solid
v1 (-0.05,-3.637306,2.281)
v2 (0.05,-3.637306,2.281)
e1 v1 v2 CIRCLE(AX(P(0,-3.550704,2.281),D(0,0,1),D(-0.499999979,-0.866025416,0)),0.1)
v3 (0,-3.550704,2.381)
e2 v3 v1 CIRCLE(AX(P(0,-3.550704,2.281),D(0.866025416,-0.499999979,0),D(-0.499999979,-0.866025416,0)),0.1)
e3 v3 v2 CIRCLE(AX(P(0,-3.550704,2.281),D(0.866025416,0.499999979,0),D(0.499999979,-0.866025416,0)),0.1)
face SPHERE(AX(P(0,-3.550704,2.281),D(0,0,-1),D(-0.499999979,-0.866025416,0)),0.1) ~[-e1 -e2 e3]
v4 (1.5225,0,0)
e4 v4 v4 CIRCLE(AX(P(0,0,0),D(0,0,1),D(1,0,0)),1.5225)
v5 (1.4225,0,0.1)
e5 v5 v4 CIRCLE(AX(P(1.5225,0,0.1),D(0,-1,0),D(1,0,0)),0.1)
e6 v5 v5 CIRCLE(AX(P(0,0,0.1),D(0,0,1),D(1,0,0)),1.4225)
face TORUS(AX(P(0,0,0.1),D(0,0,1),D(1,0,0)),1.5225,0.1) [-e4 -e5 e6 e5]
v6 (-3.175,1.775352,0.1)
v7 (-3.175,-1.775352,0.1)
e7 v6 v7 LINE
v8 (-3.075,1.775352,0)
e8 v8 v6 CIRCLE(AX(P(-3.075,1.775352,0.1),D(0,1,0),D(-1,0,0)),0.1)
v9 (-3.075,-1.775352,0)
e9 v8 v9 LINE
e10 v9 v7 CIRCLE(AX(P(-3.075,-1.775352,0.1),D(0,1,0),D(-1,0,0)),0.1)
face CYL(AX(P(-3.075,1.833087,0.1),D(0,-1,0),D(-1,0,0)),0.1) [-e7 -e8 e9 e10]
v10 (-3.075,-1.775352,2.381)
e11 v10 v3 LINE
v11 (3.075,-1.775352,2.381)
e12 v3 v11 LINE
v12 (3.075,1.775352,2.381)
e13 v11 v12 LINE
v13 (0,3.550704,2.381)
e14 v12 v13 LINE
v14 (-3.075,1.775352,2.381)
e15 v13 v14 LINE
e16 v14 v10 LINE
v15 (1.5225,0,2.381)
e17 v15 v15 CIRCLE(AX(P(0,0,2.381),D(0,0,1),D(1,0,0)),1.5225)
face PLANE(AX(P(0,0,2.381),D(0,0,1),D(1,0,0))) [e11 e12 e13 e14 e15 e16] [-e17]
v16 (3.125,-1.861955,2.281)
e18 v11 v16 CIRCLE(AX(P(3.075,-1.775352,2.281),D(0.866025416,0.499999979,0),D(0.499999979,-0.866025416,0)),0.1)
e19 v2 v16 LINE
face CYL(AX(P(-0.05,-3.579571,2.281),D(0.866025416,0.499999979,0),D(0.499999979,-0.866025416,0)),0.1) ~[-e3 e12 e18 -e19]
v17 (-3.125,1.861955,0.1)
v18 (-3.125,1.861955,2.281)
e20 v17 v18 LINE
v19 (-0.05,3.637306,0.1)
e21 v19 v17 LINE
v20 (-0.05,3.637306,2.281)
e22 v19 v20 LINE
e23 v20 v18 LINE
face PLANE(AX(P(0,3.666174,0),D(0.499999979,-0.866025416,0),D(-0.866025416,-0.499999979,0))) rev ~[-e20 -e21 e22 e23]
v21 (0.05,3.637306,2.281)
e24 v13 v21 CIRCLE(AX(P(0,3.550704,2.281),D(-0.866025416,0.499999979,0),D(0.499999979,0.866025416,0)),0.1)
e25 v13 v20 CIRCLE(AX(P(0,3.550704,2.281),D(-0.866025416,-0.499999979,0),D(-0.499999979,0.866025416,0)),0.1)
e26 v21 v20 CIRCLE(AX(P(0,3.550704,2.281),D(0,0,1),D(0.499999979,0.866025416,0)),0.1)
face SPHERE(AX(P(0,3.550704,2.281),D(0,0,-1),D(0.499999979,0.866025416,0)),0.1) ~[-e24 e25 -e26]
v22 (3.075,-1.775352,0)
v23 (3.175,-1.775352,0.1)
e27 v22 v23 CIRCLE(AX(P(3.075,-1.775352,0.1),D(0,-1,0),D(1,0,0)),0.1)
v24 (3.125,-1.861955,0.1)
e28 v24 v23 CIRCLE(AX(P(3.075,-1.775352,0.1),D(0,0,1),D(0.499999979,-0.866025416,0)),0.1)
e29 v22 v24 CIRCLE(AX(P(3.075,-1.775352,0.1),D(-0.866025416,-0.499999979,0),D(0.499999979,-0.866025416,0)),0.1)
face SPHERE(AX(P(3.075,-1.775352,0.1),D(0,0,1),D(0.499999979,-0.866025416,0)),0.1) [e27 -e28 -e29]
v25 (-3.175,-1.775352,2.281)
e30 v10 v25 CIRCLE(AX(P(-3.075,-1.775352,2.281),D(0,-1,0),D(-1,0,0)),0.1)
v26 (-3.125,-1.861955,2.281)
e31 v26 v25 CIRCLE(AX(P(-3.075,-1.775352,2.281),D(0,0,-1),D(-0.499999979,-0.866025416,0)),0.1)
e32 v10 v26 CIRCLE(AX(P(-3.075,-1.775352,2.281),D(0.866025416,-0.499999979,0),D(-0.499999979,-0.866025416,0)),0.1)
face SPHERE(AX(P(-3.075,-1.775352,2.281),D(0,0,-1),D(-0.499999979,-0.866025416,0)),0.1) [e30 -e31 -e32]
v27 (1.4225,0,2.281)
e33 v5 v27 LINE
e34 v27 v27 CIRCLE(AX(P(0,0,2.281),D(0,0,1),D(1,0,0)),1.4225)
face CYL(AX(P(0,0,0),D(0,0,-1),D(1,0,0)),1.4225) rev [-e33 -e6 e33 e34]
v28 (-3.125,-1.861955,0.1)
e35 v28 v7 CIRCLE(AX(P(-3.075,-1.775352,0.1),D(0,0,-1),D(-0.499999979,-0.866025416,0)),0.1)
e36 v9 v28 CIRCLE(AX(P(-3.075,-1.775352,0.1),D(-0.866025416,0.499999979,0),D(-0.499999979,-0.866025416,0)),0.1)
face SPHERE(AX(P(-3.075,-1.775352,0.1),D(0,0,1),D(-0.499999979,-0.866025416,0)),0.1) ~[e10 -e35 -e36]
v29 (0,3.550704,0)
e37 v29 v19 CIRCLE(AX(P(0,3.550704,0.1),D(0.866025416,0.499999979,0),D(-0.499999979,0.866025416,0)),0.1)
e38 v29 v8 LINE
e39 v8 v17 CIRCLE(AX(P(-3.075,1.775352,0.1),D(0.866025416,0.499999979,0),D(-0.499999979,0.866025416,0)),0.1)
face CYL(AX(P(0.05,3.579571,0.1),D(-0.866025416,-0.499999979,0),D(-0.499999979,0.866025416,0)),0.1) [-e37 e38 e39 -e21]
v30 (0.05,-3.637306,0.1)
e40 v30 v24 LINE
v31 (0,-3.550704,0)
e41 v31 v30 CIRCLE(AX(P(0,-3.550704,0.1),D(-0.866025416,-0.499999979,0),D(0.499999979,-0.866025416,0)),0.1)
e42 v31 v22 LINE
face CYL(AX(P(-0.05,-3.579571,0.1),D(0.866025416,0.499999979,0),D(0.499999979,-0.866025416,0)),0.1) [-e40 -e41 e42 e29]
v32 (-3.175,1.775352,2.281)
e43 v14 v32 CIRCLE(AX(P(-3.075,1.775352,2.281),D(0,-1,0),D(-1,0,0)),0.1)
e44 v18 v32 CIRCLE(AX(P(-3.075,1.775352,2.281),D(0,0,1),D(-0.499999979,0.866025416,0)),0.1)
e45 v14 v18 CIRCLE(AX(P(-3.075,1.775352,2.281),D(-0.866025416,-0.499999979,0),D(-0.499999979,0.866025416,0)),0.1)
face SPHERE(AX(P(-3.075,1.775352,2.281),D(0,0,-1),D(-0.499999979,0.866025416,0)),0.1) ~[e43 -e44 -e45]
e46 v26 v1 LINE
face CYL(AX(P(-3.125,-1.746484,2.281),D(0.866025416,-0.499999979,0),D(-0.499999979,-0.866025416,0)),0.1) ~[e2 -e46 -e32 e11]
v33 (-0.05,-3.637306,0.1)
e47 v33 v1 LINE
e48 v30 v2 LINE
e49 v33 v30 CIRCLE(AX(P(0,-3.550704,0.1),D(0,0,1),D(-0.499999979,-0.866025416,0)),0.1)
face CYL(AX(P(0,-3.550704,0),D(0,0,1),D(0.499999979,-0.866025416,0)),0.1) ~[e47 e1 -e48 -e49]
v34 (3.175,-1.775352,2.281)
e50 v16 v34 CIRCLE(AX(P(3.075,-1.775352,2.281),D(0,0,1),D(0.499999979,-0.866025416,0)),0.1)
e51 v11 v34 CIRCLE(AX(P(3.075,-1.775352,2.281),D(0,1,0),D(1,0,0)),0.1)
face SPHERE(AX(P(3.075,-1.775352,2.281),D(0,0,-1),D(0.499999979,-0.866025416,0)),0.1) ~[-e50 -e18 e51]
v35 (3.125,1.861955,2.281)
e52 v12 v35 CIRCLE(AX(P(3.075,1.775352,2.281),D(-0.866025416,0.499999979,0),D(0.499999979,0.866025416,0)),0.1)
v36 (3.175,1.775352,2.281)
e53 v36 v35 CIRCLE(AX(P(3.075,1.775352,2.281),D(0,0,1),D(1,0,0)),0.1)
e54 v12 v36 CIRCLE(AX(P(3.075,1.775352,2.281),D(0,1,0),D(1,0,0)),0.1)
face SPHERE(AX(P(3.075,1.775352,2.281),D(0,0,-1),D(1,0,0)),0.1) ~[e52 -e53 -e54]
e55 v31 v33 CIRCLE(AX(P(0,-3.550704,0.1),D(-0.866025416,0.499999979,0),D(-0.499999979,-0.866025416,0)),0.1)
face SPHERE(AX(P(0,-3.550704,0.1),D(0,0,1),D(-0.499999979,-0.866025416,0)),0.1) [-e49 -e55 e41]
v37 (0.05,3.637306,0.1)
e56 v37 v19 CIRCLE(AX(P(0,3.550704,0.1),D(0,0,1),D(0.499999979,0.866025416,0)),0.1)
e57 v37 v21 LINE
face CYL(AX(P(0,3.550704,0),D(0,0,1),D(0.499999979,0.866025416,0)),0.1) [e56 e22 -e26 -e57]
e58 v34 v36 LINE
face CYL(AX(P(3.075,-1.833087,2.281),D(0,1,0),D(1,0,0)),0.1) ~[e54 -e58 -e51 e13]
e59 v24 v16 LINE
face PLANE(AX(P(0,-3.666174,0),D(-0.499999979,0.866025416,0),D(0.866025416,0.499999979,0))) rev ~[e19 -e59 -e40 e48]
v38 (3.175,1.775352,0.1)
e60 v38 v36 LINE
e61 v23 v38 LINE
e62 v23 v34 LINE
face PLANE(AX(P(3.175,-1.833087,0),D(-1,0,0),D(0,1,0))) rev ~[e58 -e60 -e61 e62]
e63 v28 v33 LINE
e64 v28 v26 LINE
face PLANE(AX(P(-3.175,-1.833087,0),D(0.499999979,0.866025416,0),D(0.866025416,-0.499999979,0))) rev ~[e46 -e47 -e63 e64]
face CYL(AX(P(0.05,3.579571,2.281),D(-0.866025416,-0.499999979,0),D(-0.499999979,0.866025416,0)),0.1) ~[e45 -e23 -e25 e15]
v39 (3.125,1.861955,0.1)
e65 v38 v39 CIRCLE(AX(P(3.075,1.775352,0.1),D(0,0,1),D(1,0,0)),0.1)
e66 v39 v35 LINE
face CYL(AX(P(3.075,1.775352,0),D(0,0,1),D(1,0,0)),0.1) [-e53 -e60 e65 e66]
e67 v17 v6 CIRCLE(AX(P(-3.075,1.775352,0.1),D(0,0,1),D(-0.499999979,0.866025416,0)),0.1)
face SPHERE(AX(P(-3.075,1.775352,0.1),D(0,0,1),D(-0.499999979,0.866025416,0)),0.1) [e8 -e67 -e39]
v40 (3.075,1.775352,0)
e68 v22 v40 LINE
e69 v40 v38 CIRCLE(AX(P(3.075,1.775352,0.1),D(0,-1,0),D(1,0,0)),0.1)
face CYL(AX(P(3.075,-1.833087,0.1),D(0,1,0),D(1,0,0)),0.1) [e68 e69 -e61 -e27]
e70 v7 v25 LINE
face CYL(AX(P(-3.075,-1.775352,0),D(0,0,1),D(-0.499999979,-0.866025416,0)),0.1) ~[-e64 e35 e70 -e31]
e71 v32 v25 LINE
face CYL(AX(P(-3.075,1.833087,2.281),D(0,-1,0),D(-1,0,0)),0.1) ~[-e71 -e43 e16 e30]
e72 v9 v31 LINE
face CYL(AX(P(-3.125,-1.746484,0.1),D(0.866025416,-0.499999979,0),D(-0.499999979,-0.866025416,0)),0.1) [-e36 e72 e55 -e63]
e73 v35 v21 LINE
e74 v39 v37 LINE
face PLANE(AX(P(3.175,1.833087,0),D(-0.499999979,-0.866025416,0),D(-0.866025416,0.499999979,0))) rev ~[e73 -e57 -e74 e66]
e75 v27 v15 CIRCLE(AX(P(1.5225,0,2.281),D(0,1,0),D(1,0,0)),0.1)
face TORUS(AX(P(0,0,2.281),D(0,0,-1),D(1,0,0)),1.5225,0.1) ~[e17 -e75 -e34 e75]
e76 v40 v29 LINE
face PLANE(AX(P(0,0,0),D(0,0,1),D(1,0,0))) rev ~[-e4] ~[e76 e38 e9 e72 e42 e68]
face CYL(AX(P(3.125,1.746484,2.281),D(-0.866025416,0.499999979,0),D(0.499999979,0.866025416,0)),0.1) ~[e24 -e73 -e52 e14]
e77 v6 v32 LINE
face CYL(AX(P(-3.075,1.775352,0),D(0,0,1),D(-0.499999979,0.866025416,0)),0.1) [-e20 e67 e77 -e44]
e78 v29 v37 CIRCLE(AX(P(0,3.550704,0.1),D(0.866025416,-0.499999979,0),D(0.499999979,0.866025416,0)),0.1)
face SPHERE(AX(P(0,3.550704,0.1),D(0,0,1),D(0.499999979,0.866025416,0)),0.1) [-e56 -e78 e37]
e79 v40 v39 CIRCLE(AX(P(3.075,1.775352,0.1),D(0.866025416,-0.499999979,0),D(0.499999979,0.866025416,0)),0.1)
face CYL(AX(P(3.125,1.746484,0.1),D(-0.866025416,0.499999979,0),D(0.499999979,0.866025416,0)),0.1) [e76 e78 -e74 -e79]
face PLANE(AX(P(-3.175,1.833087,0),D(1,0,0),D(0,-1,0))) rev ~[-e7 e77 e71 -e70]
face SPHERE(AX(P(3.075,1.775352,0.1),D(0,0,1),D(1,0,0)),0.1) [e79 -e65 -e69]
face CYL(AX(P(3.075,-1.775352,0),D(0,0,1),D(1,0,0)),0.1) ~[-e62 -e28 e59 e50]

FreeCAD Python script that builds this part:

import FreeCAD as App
import Part
import Sketcher
from FreeCAD import Vector
Q = App.Units.Quantity


def add_polygon(sketch, points):
    """Adds a closed chain of lines whose ends are joined by coincident constraints."""
    first, n = sketch.GeometryCount, len(points)
    for a, b in zip(points, points[1:] + points[:1]):
        sketch.addGeometry(Part.LineSegment(App.Vector(*a, 0), App.Vector(*b, 0)), False)
    for i in range(n):
        sketch.addConstraint(Sketcher.Constraint("Coincident", first + i, 2, first + (i + 1) % n, 1))

doc = App.newDocument("Part")
body = doc.addObject("PartDesign::Body", "Body")

# Sketch on XY plane
sketch1 = body.newObject("Sketcher::SketchObject", "Sketch")
sketch1.AttachmentSupport = (doc.getObject("XY_Plane"), [""])
sketch1.MapMode = "FlatFace"
add_polygon(sketch1, [(3.175, -1.833087), (3.175, 1.833087), (0, 3.666174), (-3.175, 1.833087), (-3.175, -1.833087), (0, -3.666174)])  # lines 0-5
sketch1.addGeometry(Part.Circle(Vector(0, 0, 0), Vector(0, 0, 1), 1.4225), False)  # 6
sketch1.addConstraint(Sketcher.Constraint("Vertical", 0))
sketch1.addConstraint(Sketcher.Constraint("Vertical", 3))
sketch1.addConstraint(Sketcher.Constraint("Coincident", 6, 3, -1, 1))
sketch1.addConstraint(Sketcher.Constraint("Symmetric", 0, 2, 3, 2, -1, 1))
sketch1.addConstraint(Sketcher.Constraint("Symmetric", 1, 2, 4, 2, -1, 1))
sketch1.addConstraint(Sketcher.Constraint("PointOnObject", 1, 2, -2))
sketch1.addConstraint(Sketcher.Constraint("Parallel", 2, 5))
sketch1.addConstraint(Sketcher.Constraint("Horizontal", 0, 2, 2, 2))
sketch1.addConstraint(Sketcher.Constraint("Angle", 1, Q("150.000001 deg")))
sketch1.addConstraint(Sketcher.Constraint("Diameter", 6, Q("2.845 mm")))
sketch1.addConstraint(Sketcher.Constraint("DistanceX", 2, 2, 0, 2, Q("6.35 mm")))
sketch1.addConstraint(Sketcher.Constraint("DistanceY", 0, 1, 0, 2, Q("3.666174 mm")))
pad1 = body.newObject("PartDesign::Pad", "Pad")
pad1.Profile = sketch1
pad1.Length = 2.381
doc.recompute()

fillet = body.newObject("PartDesign::Fillet", "Fillet")
fillet.Base = (pad1, ["Edge1"])
fillet.UseAllEdges = True
fillet.Radius = 0.1

doc.recompute()
